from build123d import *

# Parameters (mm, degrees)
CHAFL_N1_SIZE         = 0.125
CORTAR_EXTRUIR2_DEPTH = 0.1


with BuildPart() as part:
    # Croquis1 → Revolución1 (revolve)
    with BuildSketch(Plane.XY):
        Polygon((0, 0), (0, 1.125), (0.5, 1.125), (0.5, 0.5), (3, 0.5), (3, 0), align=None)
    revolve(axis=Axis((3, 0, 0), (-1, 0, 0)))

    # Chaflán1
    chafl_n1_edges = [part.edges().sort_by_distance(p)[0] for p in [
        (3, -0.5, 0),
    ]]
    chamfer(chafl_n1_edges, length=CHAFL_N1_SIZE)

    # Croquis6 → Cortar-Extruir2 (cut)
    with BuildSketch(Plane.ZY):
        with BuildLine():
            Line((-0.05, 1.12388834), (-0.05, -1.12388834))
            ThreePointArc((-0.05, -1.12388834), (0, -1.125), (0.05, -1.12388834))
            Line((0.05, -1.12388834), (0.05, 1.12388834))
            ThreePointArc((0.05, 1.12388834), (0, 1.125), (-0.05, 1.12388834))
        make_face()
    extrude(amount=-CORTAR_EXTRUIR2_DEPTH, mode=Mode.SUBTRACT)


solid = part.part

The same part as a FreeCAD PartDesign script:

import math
import FreeCAD as App
import Part
import Sketcher

V = App.Vector


def edges_at(feature, points):
    """Names of the edges that pass closest to the given points."""
    edges = feature.Shape.Edges
    near = lambda p: min(range(len(edges)), key=lambda i: edges[i].distToShape(Part.Vertex(*p))[0])
    return sorted({f"Edge{near(p) + 1}" for p in points})

doc = App.newDocument("Part")
body = doc.addObject("PartDesign::Body", "Body")

sketch1 = doc.addObject("Sketcher::SketchObject", "Sketch")
body.addObject(sketch1)
sketch1.AttachmentSupport = (doc.XY_Plane, [""])
sketch1.MapMode = "FlatFace"
sketch1.addGeometry([
    Part.LineSegment(V(0, 1.1, 0), V(0, 0, 0)),
    Part.LineSegment(V(0, 0, 0), V(3, 0, 0)),
    Part.LineSegment(V(3, 0, 0), V(3, 0.5, 0)),
    Part.LineSegment(V(3, 0.5, 0), V(0.5, 0.5, 0)),
    Part.LineSegment(V(0.5, 0.5, 0), V(0.5, 1.1, 0)),
    Part.LineSegment(V(0.5, 1.1, 0), V(0, 1.1, 0)),
], False)
sketch1.addConstraint([
    Sketcher.Constraint("Coincident", 0, 2, 1, 1),
    Sketcher.Constraint("Coincident", 1, 2, 2, 1),
    Sketcher.Constraint("Coincident", 2, 2, 3, 1),
    Sketcher.Constraint("Coincident", 3, 2, 4, 1),
    Sketcher.Constraint("Coincident", 4, 2, 5, 1),
    Sketcher.Constraint("Coincident", 5, 2, 0, 1),
    Sketcher.Constraint("Vertical", 0),
    Sketcher.Constraint("Horizontal", 1),
    Sketcher.Constraint("Vertical", 2),
    Sketcher.Constraint("Horizontal", 3),
    Sketcher.Constraint("Vertical", 4),
    Sketcher.Constraint("Horizontal", 5),
    Sketcher.Constraint("Coincident", 0, 2, -1, 1),
    Sketcher.Constraint("Equal", 5, 2),
    Sketcher.Constraint("DistanceX", 1, 1, 1, 2, 3.0),
    Sketcher.Constraint("DistanceX", 3, 2, 3, 1, 2.5),
    Sketcher.Constraint("DistanceY", 0, 2, 0, 1, 1.125),
])
revolution = doc.addObject("PartDesign::Revolution", "Revolution")
body.addObject(revolution)
revolution.Profile = sketch1
revolution.ReferenceAxis = (sketch1, ["H_Axis"])
revolution.Angle = 360
doc.recompute()

chamfer = doc.addObject("PartDesign::Chamfer", "Chamfer")
body.addObject(chamfer)
chamfer.Base = (revolution, edges_at(revolution, [(3, -0.5, 0)]))
chamfer.Size = 0.125

sketch2 = doc.addObject("Sketcher::SketchObject", "Sketch001")
body.addObject(sketch2)
sketch2.AttachmentSupport = (doc.YZ_Plane, [""])
sketch2.MapMode = "FlatFace"
sketch2.addGeometry([
    Part.LineSegment(V(1.12, -0.05, 0), V(-1.12, -0.05, 0)),
    Part.ArcOfCircle(Part.Circle(V(0, 0, 0), V(0, 0, 1), 1.13), math.radians(177.45), math.radians(182.55)),
    Part.LineSegment(V(-1.12, 0.05, 0), V(1.12, 0.05, 0)),
    Part.ArcOfCircle(Part.Circle(V(0, 0, 0), V(0, 0, 1), 1.13), math.radians(-2.55), math.radians(2.55)),
], False)
sketch2.addConstraint([
    Sketcher.Constraint("Coincident", 0, 2, 1, 2),
    Sketcher.Constraint("Coincident", 1, 1, 2, 1),
    Sketcher.Constraint("Coincident", 2, 2, 3, 2),
    Sketcher.Constraint("Coincident", 3, 1, 0, 1),
    Sketcher.Constraint("Horizontal", 0),
    Sketcher.Constraint("Horizontal", 2),
    Sketcher.Constraint("Coincident", 1, 3, -1, 1),
    Sketcher.Constraint("Coincident", 3, 3, -1, 1),
    Sketcher.Constraint("Equal", 1, 3),
    Sketcher.Constraint("Vertical", 0, 2, 1, 1),
    Sketcher.Constraint("Radius", 1, 1.125),
    Sketcher.Constraint("DistanceY", 0, 2, 1, 1, 0.1),
])
pocket1 = doc.addObject("PartDesign::Pocket", "Pocket")
body.addObject(pocket1)
pocket1.Profile = sketch2
pocket1.Length = 0.1
pocket1.Reversed = True

doc.recompute()
